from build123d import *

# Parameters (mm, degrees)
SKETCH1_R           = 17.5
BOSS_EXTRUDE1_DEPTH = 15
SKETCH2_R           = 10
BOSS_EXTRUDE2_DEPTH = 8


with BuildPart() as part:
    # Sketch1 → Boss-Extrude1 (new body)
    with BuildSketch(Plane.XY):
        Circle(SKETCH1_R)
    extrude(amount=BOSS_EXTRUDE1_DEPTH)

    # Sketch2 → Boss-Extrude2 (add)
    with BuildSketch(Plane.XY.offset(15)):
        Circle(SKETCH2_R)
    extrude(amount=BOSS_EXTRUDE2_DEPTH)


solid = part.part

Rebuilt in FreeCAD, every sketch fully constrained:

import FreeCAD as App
import Part
import Sketcher
from FreeCAD import Vector

doc = App.newDocument("Part")
params = doc.addObject("Spreadsheet::Sheet", "Params")
for row, (alias, value) in enumerate([
    ("sketch1_diameter", "35 mm"),
    ("pad1_length", "15 mm"),
    ("sketch2_diameter", "20 mm"),
    ("pad2_length", "8 mm"),
], start=1):
    params.set(f"A{row}", alias)
    params.set(f"B{row}", "=" + value)
    params.setAlias(f"B{row}", alias)

body = doc.addObject("PartDesign::Body", "Body")

# Sketch on XY plane
sketch1 = doc.addObject("Sketcher::SketchObject", "Sketch")
body.addObject(sketch1)
sketch1.AttachmentSupport = (doc.XY_Plane, [""])
sketch1.MapMode = "FlatFace"
sketch1.addGeometry(Part.Circle(Vector(0, 0, 0), Vector(0, 0, 1), 18), False)
sketch1.addConstraint(Sketcher.Constraint("Coincident", 0, 3, -1, 1))
sketch1.addConstraint(Sketcher.Constraint("Diameter", 0, 35.0))
sketch1.setExpression("Constraints[1]", "Params.sketch1_diameter")
pad1 = doc.addObject("PartDesign::Pad", "Pad")
body.addObject(pad1)
pad1.Profile = sketch1
pad1.setExpression("Length", "Params.pad1_length")

# Sketch on XY plane
sketch2 = doc.addObject("Sketcher::SketchObject", "Sketch001")
body.addObject(sketch2)
sketch2.AttachmentSupport = (doc.XY_Plane, [""])
sketch2.MapMode = "FlatFace"
sketch2.AttachmentOffset = App.Placement(Vector(0, 0, 15), App.Rotation())
sketch2.addGeometry(Part.Circle(Vector(0, 0, 0), Vector(0, 0, 1), 10), False)
sketch2.addConstraint(Sketcher.Constraint("Coincident", 0, 3, -1, 1))
sketch2.addConstraint(Sketcher.Constraint("Diameter", 0, 20.0))
sketch2.setExpression("Constraints[1]", "Params.sketch2_diameter")
pad2 = doc.addObject("PartDesign::Pad", "Pad001")
body.addObject(pad2)
pad2.Profile = sketch2
pad2.setExpression("Length", "Params.pad2_length")

doc.recompute()
